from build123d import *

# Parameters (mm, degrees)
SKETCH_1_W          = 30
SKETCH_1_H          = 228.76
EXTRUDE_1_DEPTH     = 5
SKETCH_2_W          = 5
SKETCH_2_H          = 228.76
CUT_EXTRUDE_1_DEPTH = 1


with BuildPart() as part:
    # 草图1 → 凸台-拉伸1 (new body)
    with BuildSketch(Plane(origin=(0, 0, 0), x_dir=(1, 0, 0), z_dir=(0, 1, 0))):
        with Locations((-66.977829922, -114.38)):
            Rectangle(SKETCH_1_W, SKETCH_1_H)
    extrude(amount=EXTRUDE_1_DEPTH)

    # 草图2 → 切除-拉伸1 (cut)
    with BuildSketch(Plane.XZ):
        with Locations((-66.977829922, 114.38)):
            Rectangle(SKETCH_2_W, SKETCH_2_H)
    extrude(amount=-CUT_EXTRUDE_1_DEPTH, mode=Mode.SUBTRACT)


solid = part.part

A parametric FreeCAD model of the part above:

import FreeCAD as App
import Part
import Sketcher

V = App.Vector


def add_polygon(sketch, points):
    """Adds a closed chain of lines whose ends are joined by coincident constraints."""
    first, n = sketch.GeometryCount, len(points)
    for a, b in zip(points, points[1:] + points[:1]):
        sketch.addGeometry(Part.LineSegment(App.Vector(*a, 0), App.Vector(*b, 0)), False)
    for i in range(n):
        sketch.addConstraint(Sketcher.Constraint("Coincident", first + i, 2, first + (i + 1) % n, 1))

doc = App.newDocument("Part")
body = doc.addObject("PartDesign::Body", "Body")

# Sketch on XZ plane
sketch1 = body.newObject("Sketcher::SketchObject", "Sketch")
sketch1.AttachmentSupport = (doc.getObject("XZ_Plane"), [""])
sketch1.MapMode = "FlatFace"
add_polygon(sketch1, [(-82, 0), (-82, 229), (-52, 229), (-52, 0)])  # lines 0-3
sketch1.addConstraint([
    Sketcher.Constraint("Vertical", 0),
    Sketcher.Constraint("Horizontal", 1),
    Sketcher.Constraint("Vertical", 2),
    Sketcher.Constraint("Horizontal", 3),
    Sketcher.Constraint("PointOnObject", 2, 2, -1),
    Sketcher.Constraint("DistanceX", 1, 1, 1, 2, 30.0),
    Sketcher.Constraint("DistanceY", 0, 1, 0, 2, 228.76),
    Sketcher.Constraint("DistanceX", 0, 2, -1, 1, 81.97783),
])
pad1 = body.newObject("PartDesign::Pad", "Pad")
pad1.Profile = sketch1
pad1.Length = 5
pad1.Reversed = True

# Sketch on XZ plane
sketch2 = body.newObject("Sketcher::SketchObject", "Sketch001")
sketch2.AttachmentSupport = (doc.getObject("XZ_Plane"), [""])
sketch2.MapMode = "FlatFace"
add_polygon(sketch2, [(-69, 229), (-69, 0), (-64, 0), (-64, 229)])  # lines 0-3
sketch2.addConstraint([
    Sketcher.Constraint("Vertical", 0),
    Sketcher.Constraint("Horizontal", 1),
    Sketcher.Constraint("Vertical", 2),
    Sketcher.Constraint("Horizontal", 3),
    Sketcher.Constraint("PointOnObject", 0, 2, -1),
    Sketcher.Constraint("DistanceX", 1, 1, 1, 2, 5.0),
    Sketcher.Constraint("DistanceY", 0, 2, 0, 1, 228.76),
    Sketcher.Constraint("DistanceX", 0, 2, -1, 1, 69.47783),
])
pocket1 = body.newObject("PartDesign::Pocket", "Pocket")
pocket1.Profile = sketch2
pocket1.Length = 1

doc.recompute()
